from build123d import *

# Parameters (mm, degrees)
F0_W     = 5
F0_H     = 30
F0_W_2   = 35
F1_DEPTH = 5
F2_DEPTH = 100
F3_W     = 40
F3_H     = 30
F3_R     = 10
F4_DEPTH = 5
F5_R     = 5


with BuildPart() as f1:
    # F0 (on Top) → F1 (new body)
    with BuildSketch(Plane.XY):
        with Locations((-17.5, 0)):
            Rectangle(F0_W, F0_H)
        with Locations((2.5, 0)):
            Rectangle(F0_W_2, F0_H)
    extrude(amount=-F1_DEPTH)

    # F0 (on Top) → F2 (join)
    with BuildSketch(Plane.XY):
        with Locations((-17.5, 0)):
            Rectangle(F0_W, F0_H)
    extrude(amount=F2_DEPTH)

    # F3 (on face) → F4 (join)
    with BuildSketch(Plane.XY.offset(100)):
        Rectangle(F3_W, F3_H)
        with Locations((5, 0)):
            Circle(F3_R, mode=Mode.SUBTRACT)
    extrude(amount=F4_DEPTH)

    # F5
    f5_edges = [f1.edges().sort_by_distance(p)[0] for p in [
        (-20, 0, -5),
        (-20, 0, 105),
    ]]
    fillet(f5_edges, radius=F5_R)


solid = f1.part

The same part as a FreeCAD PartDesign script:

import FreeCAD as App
import Part
import Sketcher

V = App.Vector


def edges_at(feature, points):
    """Names of the edges that pass closest to the given points."""
    edges = feature.Shape.Edges
    near = lambda p: min(range(len(edges)), key=lambda i: edges[i].distToShape(Part.Vertex(*p))[0])
    return sorted({f"Edge{near(p) + 1}" for p in points})


def add_polygon(sketch, points):
    """Adds a closed chain of lines whose ends are joined by coincident constraints."""
    first, n = sketch.GeometryCount, len(points)
    for a, b in zip(points, points[1:] + points[:1]):
        sketch.addGeometry(Part.LineSegment(App.Vector(*a, 0), App.Vector(*b, 0)), False)
    for i in range(n):
        sketch.addConstraint(Sketcher.Constraint("Coincident", first + i, 2, first + (i + 1) % n, 1))

doc = App.newDocument("Part")
params = doc.addObject("Spreadsheet::Sheet", "Params")
for row, (alias, value) in enumerate([
    ("sketch1_width", "40 mm"),
    ("sketch1_height", "30 mm"),
    ("pad1_length", "5 mm"),
    ("sketch2_width", "5 mm"),
    ("sketch2_height", "30 mm"),
    ("pad2_length", "100 mm"),
    ("sketch3_diameter", "20 mm"),
    ("sketch3_width", "40 mm"),
    ("sketch3_height", "30 mm"),
    ("pad3_length", "5 mm"),
    ("fillet_radius", "5 mm"),
], start=1):
    params.set(f"A{row}", alias)
    params.set(f"B{row}", "=" + value)
    params.setAlias(f"B{row}", alias)

body = doc.addObject("PartDesign::Body", "Body")

sketch1 = body.newObject("Sketcher::SketchObject", "Sketch")
sketch1.AttachmentSupport = (doc.getObject("XY_Plane"), [""])
sketch1.MapMode = "FlatFace"
add_polygon(sketch1, [(-20, 15), (-20, -15), (20, -15), (20, 15)])
sketch1.addConstraint(Sketcher.Constraint("Vertical", 0))
sketch1.addConstraint(Sketcher.Constraint("Horizontal", 1))
sketch1.addConstraint(Sketcher.Constraint("Vertical", 2))
sketch1.addConstraint(Sketcher.Constraint("Horizontal", 3))
sketch1.addConstraint(Sketcher.Constraint("Symmetric", 0, 2, 2, 2, -1, 1))
sketch1.addConstraint(Sketcher.Constraint("DistanceX", 1, 1, 1, 2, 40.0))
sketch1.addConstraint(Sketcher.Constraint("DistanceY", 0, 2, 0, 1, 30.0))
sketch1.setExpression("Constraints[9]", "Params.sketch1_width")
sketch1.setExpression("Constraints[10]", "Params.sketch1_height")
pad1 = body.newObject("PartDesign::Pad", "Pad")
pad1.Profile = sketch1
pad1.setExpression("Length", "Params.pad1_length")
pad1.Reversed = True

sketch2 = body.newObject("Sketcher::SketchObject", "Sketch001")
sketch2.AttachmentSupport = (doc.getObject("XY_Plane"), [""])
sketch2.MapMode = "FlatFace"
add_polygon(sketch2, [(-20, 15), (-20, -15), (-15, -15), (-15, 15)])
sketch2.addConstraint(Sketcher.Constraint("Vertical", 0))
sketch2.addConstraint(Sketcher.Constraint("Horizontal", 1))
sketch2.addConstraint(Sketcher.Constraint("Vertical", 2))
sketch2.addConstraint(Sketcher.Constraint("Horizontal", 3))
sketch2.addConstraint(Sketcher.Constraint("DistanceX", 1, 1, 1, 2, 5.0))
sketch2.addConstraint(Sketcher.Constraint("DistanceY", 0, 2, 0, 1, 30.0))
sketch2.addConstraint(Sketcher.Constraint("DistanceX", 0, 2, -1, 1, 20.0))
sketch2.addConstraint(Sketcher.Constraint("DistanceY", 0, 2, -1, 1, 15.0))
sketch2.setExpression("Constraints[8]", "Params.sketch2_width")
sketch2.setExpression("Constraints[9]", "Params.sketch2_height")
pad2 = body.newObject("PartDesign::Pad", "Pad001")
pad2.Profile = sketch2
pad2.setExpression("Length", "Params.pad2_length")

sketch3 = body.newObject("Sketcher::SketchObject", "Sketch002")
sketch3.AttachmentSupport = (doc.getObject("XY_Plane"), [""])
sketch3.MapMode = "FlatFace"
sketch3.AttachmentOffset = App.Placement(V(0, 0, 100), App.Rotation())
add_polygon(sketch3, [(-20, 15), (-20, -15), (20, -15), (20, 15)])
sketch3.addGeometry(Part.Circle(V(5, 0, 0), V(0, 0, 1), 10), False)
sketch3.addConstraint(Sketcher.Constraint("Vertical", 0))
sketch3.addConstraint(Sketcher.Constraint("Horizontal", 1))
sketch3.addConstraint(Sketcher.Constraint("Vertical", 2))
sketch3.addConstraint(Sketcher.Constraint("Horizontal", 3))
sketch3.addConstraint(Sketcher.Constraint("Symmetric", 0, 2, 2, 2, -1, 1))
sketch3.addConstraint(Sketcher.Constraint("PointOnObject", 4, 3, -1))
sketch3.addConstraint(Sketcher.Constraint("Diameter", 4, 20.0))
sketch3.addConstraint(Sketcher.Constraint("DistanceX", 1, 1, 1, 2, 40.0))
sketch3.addConstraint(Sketcher.Constraint("DistanceY", 0, 2, 0, 1, 30.0))
sketch3.addConstraint(Sketcher.Constraint("DistanceX", -1, 1, 4, 3, 5.0))
sketch3.setExpression("Constraints[10]", "Params.sketch3_diameter")
sketch3.setExpression("Constraints[11]", "Params.sketch3_width")
sketch3.setExpression("Constraints[12]", "Params.sketch3_height")
pad3 = body.newObject("PartDesign::Pad", "Pad002")
pad3.Profile = sketch3
pad3.setExpression("Length", "Params.pad3_length")
doc.recompute()

fillet = body.newObject("PartDesign::Fillet", "Fillet")
fillet.Base = (pad3, edges_at(pad3, [(-20, 0, -5), (-20, 0, 105)]))
fillet.setExpression("Radius", "Params.fillet_radius")

doc.recompute()
